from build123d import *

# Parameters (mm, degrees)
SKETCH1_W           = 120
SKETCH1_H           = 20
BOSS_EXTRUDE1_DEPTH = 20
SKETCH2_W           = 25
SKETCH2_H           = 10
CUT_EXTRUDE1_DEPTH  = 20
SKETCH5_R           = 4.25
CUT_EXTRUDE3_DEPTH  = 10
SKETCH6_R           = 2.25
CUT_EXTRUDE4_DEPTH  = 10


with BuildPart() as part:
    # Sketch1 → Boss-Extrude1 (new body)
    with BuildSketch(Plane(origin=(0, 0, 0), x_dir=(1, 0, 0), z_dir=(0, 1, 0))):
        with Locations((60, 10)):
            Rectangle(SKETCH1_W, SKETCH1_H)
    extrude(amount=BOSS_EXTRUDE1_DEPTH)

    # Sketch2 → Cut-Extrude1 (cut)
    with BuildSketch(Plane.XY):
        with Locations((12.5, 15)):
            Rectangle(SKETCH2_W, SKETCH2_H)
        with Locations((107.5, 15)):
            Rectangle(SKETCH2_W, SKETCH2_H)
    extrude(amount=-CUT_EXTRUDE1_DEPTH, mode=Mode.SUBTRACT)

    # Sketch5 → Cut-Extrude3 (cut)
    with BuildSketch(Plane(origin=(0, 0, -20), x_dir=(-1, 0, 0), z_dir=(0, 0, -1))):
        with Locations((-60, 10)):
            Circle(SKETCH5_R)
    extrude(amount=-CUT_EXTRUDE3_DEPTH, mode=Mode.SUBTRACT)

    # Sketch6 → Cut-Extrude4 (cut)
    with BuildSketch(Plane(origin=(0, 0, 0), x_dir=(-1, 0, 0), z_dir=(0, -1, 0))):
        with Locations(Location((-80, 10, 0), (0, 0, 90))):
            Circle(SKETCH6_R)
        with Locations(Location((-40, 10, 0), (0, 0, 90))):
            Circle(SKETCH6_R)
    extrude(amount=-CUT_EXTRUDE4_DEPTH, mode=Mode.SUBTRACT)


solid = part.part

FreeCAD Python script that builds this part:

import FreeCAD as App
import Part
import Sketcher
from FreeCAD import Vector
Q = App.Units.Quantity

doc = App.newDocument("Part")
body = doc.addObject("PartDesign::Body", "Body")

sketch1 = doc.addObject("Sketcher::SketchObject", "Sketch")
body.addObject(sketch1)
sketch1.AttachmentSupport = (doc.XZ_Plane, [""])
sketch1.MapMode = "FlatFace"
sketch1.addGeometry([
    Part.LineSegment(Vector(0, -20, 0), Vector(0, 0, 0)),
    Part.LineSegment(Vector(0, 0, 0), Vector(120, 0, 0)),
    Part.LineSegment(Vector(120, 0, 0), Vector(120, -20, 0)),
    Part.LineSegment(Vector(120, -20, 0), Vector(0, -20, 0)),
], False)
sketch1.addConstraint([
    Sketcher.Constraint("Coincident", 0, 2, 1, 1),
    Sketcher.Constraint("Coincident", 1, 2, 2, 1),
    Sketcher.Constraint("Coincident", 2, 2, 3, 1),
    Sketcher.Constraint("Coincident", 3, 2, 0, 1),
    Sketcher.Constraint("Vertical", 0),
    Sketcher.Constraint("Horizontal", 1),
    Sketcher.Constraint("Vertical", 2),
    Sketcher.Constraint("Horizontal", 3),
    Sketcher.Constraint("Coincident", 0, 2, -1, 1),
    Sketcher.Constraint("DistanceX", 1, 1, 1, 2, Q("120 mm")),
    Sketcher.Constraint("DistanceY", 0, 1, 0, 2, Q("20 mm")),
])
pad1 = doc.addObject("PartDesign::Pad", "Pad")
body.addObject(pad1)
pad1.Profile = sketch1
pad1.Length = 20
pad1.Reversed = True

sketch2 = doc.addObject("Sketcher::SketchObject", "Sketch001")
body.addObject(sketch2)
sketch2.AttachmentSupport = (doc.XY_Plane, [""])
sketch2.MapMode = "FlatFace"
sketch2.addGeometry([
    Part.LineSegment(Vector(0, 20, 0), Vector(0, 10, 0)),
    Part.LineSegment(Vector(0, 10, 0), Vector(25, 10, 0)),
    Part.LineSegment(Vector(25, 10, 0), Vector(25, 20, 0)),
    Part.LineSegment(Vector(25, 20, 0), Vector(0, 20, 0)),
    Part.LineSegment(Vector(95, 20, 0), Vector(95, 10, 0)),
    Part.LineSegment(Vector(95, 10, 0), Vector(120, 10, 0)),
    Part.LineSegment(Vector(120, 10, 0), Vector(120, 20, 0)),
    Part.LineSegment(Vector(120, 20, 0), Vector(95, 20, 0)),
], False)
sketch2.addConstraint([
    Sketcher.Constraint("Coincident", 0, 2, 1, 1),
    Sketcher.Constraint("Coincident", 1, 2, 2, 1),
    Sketcher.Constraint("Coincident", 2, 2, 3, 1),
    Sketcher.Constraint("Coincident", 3, 2, 0, 1),
    Sketcher.Constraint("Coincident", 4, 2, 5, 1),
    Sketcher.Constraint("Coincident", 5, 2, 6, 1),
    Sketcher.Constraint("Coincident", 6, 2, 7, 1),
    Sketcher.Constraint("Coincident", 7, 2, 4, 1),
    Sketcher.Constraint("Vertical", 0),
    Sketcher.Constraint("Horizontal", 1),
    Sketcher.Constraint("Vertical", 2),
    Sketcher.Constraint("Horizontal", 3),
    Sketcher.Constraint("Vertical", 4),
    Sketcher.Constraint("Horizontal", 5),
    Sketcher.Constraint("Vertical", 6),
    Sketcher.Constraint("Horizontal", 7),
    Sketcher.Constraint("PointOnObject", 0, 2, -2),
    Sketcher.Constraint("Horizontal", 1, 2, 4, 2),
    Sketcher.Constraint("Horizontal", 3, 2, 6, 2),
    Sketcher.Constraint("Equal", 3, 5),
    Sketcher.Constraint("DistanceX", 1, 1, 1, 2, Q("25 mm")),
    Sketcher.Constraint("DistanceY", 0, 2, 0, 1, Q("10 mm")),
    Sketcher.Constraint("DistanceY", -1, 1, 0, 2, Q("10 mm")),
    Sketcher.Constraint("DistanceX", -1, 1, 4, 2, Q("95 mm")),
])
pocket1 = doc.addObject("PartDesign::Pocket", "Pocket")
body.addObject(pocket1)
pocket1.Profile = sketch2
pocket1.Length = 20

sketch3 = doc.addObject("Sketcher::SketchObject", "Sketch002")
body.addObject(sketch3)
sketch3.AttachmentSupport = (doc.XY_Plane, [""])
sketch3.MapMode = "FlatFace"
sketch3.AttachmentOffset = App.Placement(Vector(0, 0, -20), App.Rotation())
sketch3.addGeometry(Part.Circle(Vector(60, 10, 0), Vector(0, 0, 1), 4.2), False)
sketch3.addConstraint([
    Sketcher.Constraint("Diameter", 0, Q("8.5 mm")),
    Sketcher.Constraint("DistanceX", -1, 1, 0, 3, Q("60 mm")),
    Sketcher.Constraint("DistanceY", -1, 1, 0, 3, Q("10 mm")),
])
pocket2 = doc.addObject("PartDesign::Pocket", "Pocket001")
body.addObject(pocket2)
pocket2.Profile = sketch3
pocket2.Length = 10
pocket2.Reversed = True

sketch4 = doc.addObject("Sketcher::SketchObject", "Sketch003")
body.addObject(sketch4)
sketch4.AttachmentSupport = (doc.XZ_Plane, [""])
sketch4.MapMode = "FlatFace"
sketch4.addGeometry([
    Part.Circle(Vector(80, -10, 0), Vector(0, 0, 1), 2.2),
    Part.Circle(Vector(40, -10, 0), Vector(0, 0, 1), 2.2),
], False)
sketch4.addConstraint([
    Sketcher.Constraint("Equal", 0, 1),
    Sketcher.Constraint("Horizontal", 0, 3, 1, 3),
    Sketcher.Constraint("Diameter", 0, Q("4.5 mm")),
    Sketcher.Constraint("DistanceX", -1, 1, 0, 3, Q("80 mm")),
    Sketcher.Constraint("DistanceY", 0, 3, -1, 1, Q("10 mm")),
    Sketcher.Constraint("DistanceX", -1, 1, 1, 3, Q("40 mm")),
])
pocket3 = doc.addObject("PartDesign::Pocket", "Pocket002")
body.addObject(pocket3)
pocket3.Profile = sketch4
pocket3.Length = 10

doc.recompute()
